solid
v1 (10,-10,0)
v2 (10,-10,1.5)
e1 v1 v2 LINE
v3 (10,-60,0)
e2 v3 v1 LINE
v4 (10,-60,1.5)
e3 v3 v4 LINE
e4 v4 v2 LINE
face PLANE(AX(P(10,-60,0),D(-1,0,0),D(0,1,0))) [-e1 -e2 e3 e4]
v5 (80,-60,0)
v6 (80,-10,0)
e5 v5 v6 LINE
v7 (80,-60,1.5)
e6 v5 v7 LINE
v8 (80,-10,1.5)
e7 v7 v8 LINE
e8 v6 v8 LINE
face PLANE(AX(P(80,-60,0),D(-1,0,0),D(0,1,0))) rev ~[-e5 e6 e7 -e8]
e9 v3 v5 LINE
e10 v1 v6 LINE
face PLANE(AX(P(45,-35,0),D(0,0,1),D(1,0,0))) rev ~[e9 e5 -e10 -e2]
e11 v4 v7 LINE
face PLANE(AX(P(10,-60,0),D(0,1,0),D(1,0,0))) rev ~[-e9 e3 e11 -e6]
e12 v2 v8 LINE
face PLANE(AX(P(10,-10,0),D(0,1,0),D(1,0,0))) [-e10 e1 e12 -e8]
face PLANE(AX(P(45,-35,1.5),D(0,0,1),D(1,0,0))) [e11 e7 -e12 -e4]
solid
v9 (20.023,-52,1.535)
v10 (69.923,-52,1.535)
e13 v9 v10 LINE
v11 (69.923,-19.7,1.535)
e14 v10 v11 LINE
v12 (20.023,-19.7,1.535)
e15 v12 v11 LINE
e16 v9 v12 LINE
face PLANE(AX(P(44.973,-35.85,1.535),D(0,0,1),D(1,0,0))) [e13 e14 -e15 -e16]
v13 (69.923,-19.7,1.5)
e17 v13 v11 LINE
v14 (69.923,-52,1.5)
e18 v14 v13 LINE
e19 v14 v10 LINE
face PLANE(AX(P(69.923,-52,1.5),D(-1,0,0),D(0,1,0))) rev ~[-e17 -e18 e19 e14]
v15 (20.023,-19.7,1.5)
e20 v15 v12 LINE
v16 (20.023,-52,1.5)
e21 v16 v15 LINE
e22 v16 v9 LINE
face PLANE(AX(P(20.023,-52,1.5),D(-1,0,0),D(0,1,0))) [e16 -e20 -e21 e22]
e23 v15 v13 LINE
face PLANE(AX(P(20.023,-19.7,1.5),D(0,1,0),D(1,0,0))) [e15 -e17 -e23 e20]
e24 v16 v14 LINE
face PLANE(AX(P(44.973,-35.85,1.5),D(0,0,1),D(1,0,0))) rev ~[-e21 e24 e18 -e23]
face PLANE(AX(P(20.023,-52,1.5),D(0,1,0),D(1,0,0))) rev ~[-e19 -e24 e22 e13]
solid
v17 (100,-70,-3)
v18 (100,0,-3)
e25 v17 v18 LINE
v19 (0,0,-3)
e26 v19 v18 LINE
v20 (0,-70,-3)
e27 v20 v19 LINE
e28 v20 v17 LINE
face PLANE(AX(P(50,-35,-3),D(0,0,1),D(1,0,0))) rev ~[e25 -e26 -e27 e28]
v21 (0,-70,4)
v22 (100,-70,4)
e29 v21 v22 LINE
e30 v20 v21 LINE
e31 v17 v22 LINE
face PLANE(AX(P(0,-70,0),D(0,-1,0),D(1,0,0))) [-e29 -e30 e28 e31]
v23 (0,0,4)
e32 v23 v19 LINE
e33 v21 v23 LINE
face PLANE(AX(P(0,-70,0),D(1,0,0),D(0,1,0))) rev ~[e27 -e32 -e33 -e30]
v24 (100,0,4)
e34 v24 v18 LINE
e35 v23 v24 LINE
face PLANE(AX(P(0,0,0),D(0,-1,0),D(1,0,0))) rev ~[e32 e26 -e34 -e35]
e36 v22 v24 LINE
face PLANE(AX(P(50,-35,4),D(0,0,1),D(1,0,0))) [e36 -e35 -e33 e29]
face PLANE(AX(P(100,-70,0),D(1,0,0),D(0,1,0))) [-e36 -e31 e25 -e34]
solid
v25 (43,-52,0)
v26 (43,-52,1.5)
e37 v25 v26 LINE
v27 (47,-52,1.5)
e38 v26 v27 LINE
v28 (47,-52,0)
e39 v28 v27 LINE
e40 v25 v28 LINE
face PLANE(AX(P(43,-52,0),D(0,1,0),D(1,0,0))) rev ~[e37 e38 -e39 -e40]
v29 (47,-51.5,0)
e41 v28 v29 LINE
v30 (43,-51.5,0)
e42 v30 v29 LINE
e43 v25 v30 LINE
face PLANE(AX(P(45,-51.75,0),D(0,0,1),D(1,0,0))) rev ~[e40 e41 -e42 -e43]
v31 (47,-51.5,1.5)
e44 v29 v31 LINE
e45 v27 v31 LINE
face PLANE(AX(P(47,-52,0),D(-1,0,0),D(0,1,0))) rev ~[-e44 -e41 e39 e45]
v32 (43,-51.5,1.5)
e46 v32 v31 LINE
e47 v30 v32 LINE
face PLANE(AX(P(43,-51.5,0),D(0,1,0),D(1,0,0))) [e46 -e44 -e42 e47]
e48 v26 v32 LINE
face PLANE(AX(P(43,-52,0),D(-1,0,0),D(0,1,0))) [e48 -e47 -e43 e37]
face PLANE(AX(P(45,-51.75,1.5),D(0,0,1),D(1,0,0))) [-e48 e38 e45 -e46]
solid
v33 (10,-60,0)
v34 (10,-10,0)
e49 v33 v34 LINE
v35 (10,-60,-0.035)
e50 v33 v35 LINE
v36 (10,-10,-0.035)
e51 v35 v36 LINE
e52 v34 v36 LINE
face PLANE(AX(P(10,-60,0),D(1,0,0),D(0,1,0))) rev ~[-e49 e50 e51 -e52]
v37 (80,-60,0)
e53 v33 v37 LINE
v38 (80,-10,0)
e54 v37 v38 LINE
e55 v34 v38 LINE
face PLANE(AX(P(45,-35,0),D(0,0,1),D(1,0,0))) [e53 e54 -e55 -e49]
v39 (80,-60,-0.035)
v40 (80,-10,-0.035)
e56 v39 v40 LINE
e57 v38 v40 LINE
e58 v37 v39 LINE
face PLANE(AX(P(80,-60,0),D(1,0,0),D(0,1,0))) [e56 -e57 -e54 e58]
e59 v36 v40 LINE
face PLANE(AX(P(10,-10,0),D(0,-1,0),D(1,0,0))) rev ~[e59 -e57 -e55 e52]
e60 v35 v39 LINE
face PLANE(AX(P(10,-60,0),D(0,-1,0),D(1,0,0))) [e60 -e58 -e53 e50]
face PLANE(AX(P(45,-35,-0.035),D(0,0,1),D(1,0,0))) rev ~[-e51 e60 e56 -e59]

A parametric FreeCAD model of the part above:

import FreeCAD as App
import Part
import Sketcher

V = App.Vector


def add_polygon(sketch, points):
    """Adds a closed chain of lines whose ends are joined by coincident constraints."""
    first, n = sketch.GeometryCount, len(points)
    for a, b in zip(points, points[1:] + points[:1]):
        sketch.addGeometry(Part.LineSegment(App.Vector(*a, 0), App.Vector(*b, 0)), False)
    for i in range(n):
        sketch.addConstraint(Sketcher.Constraint("Coincident", first + i, 2, first + (i + 1) % n, 1))

doc = App.newDocument("Part")
body = doc.addObject("PartDesign::Body", "Body")

sketch1 = body.newObject("Sketcher::SketchObject", "Sketch")
sketch1.AttachmentSupport = (doc.getObject("XY_Plane"), [""])
sketch1.MapMode = "FlatFace"
add_polygon(sketch1, [(10, -10), (10, -60), (80, -60), (80, -10)])
sketch1.addConstraint([
    Sketcher.Constraint("Vertical", 0),
    Sketcher.Constraint("Horizontal", 1),
    Sketcher.Constraint("Vertical", 2),
    Sketcher.Constraint("Horizontal", 3),
    Sketcher.Constraint("DistanceX", 1, 1, 1, 2, 70.0),
    Sketcher.Constraint("DistanceY", 0, 2, 0, 1, 50.0),
    Sketcher.Constraint("DistanceX", -1, 1, 0, 2, 10.0),
    Sketcher.Constraint("DistanceY", 0, 2, -1, 1, 60.0),
])
pad1 = body.newObject("PartDesign::Pad", "Pad")
pad1.Profile = sketch1
pad1.Length = 1.5
body2 = doc.addObject("PartDesign::Body", "Body001")

sketch2 = body2.newObject("Sketcher::SketchObject", "Sketch001")
sketch2.AttachmentSupport = (doc.getObject("XY_Plane001"), [""])
sketch2.MapMode = "FlatFace"
add_polygon(sketch2, [(43, -51.5), (43, -52), (47, -52), (47, -51.5)])
sketch2.addConstraint([
    Sketcher.Constraint("Vertical", 0),
    Sketcher.Constraint("Horizontal", 1),
    Sketcher.Constraint("Vertical", 2),
    Sketcher.Constraint("Horizontal", 3),
    Sketcher.Constraint("DistanceX", 1, 1, 1, 2, 4.0),
    Sketcher.Constraint("DistanceY", 0, 2, 0, 1, 0.5),
    Sketcher.Constraint("DistanceX", -1, 1, 0, 2, 43.0),
    Sketcher.Constraint("DistanceY", 0, 2, -1, 1, 52.0),
])
pad2 = body2.newObject("PartDesign::Pad", "Pad001")
pad2.Profile = sketch2
pad2.Length = 1.5
body3 = doc.addObject("PartDesign::Body", "Body002")

sketch3 = body3.newObject("Sketcher::SketchObject", "Sketch002")
sketch3.AttachmentSupport = (doc.getObject("XY_Plane002"), [""])
sketch3.MapMode = "FlatFace"
add_polygon(sketch3, [(0, 0), (0, -70), (100, -70), (100, 0)])
sketch3.addConstraint([
    Sketcher.Constraint("Vertical", 0),
    Sketcher.Constraint("Horizontal", 1),
    Sketcher.Constraint("Vertical", 2),
    Sketcher.Constraint("Horizontal", 3),
    Sketcher.Constraint("Coincident", 3, 2, -1, 1),
    Sketcher.Constraint("DistanceX", 1, 1, 1, 2, 100.0),
    Sketcher.Constraint("DistanceY", 0, 2, 0, 1, 70.0),
])
pad3 = body3.newObject("PartDesign::Pad", "Pad002")
pad3.Profile = sketch3
pad3.Length = 3
pad3.Reversed = True
body4 = doc.addObject("PartDesign::Body", "Body003")

sketch4 = body4.newObject("Sketcher::SketchObject", "Sketch003")
sketch4.AttachmentSupport = (doc.getObject("XY_Plane003"), [""])
sketch4.MapMode = "FlatFace"
add_polygon(sketch4, [(0, 0), (0, -70), (100, -70), (100, 0)])
sketch4.addConstraint([
    Sketcher.Constraint("Vertical", 0),
    Sketcher.Constraint("Horizontal", 1),
    Sketcher.Constraint("Vertical", 2),
    Sketcher.Constraint("Horizontal", 3),
    Sketcher.Constraint("Coincident", 3, 2, -1, 1),
    Sketcher.Constraint("DistanceX", 1, 1, 1, 2, 100.0),
    Sketcher.Constraint("DistanceY", 0, 2, 0, 1, 70.0),
])
pad4 = body4.newObject("PartDesign::Pad", "Pad003")
pad4.Profile = sketch4
pad4.Length = 4
doc.recompute()

boolean = body4.newObject("PartDesign::Boolean", "Boolean")
boolean.Type = "Fuse"
boolean.addObjects([body3])
body5 = doc.addObject("PartDesign::Body", "Body004")

sketch5 = body5.newObject("Sketcher::SketchObject", "Sketch004")
sketch5.AttachmentSupport = (doc.getObject("XY_Plane004"), [""])
sketch5.MapMode = "FlatFace"
sketch5.AttachmentOffset = App.Placement(V(0, 0, 1.5), App.Rotation())
add_polygon(sketch5, [(20.023, -19.7), (20.023, -52), (69.923, -52), (69.923, -19.7)])
sketch5.addConstraint([
    Sketcher.Constraint("Vertical", 0),
    Sketcher.Constraint("Horizontal", 1),
    Sketcher.Constraint("Vertical", 2),
    Sketcher.Constraint("Horizontal", 3),
    Sketcher.Constraint("DistanceX", 1, 1, 1, 2, 49.9),
    Sketcher.Constraint("DistanceY", 0, 2, 0, 1, 32.3),
    Sketcher.Constraint("DistanceY", 0, 2, -1, 1, 52.0),
    Sketcher.Constraint("DistanceX", -1, 1, 0, 2, 20.023),
])
pad5 = body5.newObject("PartDesign::Pad", "Pad004")
pad5.Profile = sketch5
pad5.Length = 0.035
body6 = doc.addObject("PartDesign::Body", "Body005")

sketch6 = body6.newObject("Sketcher::SketchObject", "Sketch005")
sketch6.AttachmentSupport = (doc.getObject("XY_Plane005"), [""])
sketch6.MapMode = "FlatFace"
add_polygon(sketch6, [(10, -10), (10, -60), (80, -60), (80, -10)])
sketch6.addConstraint([
    Sketcher.Constraint("Vertical", 0),
    Sketcher.Constraint("Horizontal", 1),
    Sketcher.Constraint("Vertical", 2),
    Sketcher.Constraint("Horizontal", 3),
    Sketcher.Constraint("DistanceX", 1, 1, 1, 2, 70.0),
    Sketcher.Constraint("DistanceY", 0, 2, 0, 1, 50.0),
    Sketcher.Constraint("DistanceX", -1, 1, 0, 2, 10.0),
    Sketcher.Constraint("DistanceY", 0, 2, -1, 1, 60.0),
])
pad6 = body6.newObject("PartDesign::Pad", "Pad005")
pad6.Profile = sketch6
pad6.Length = 0.035
pad6.Reversed = True

doc.recompute()
